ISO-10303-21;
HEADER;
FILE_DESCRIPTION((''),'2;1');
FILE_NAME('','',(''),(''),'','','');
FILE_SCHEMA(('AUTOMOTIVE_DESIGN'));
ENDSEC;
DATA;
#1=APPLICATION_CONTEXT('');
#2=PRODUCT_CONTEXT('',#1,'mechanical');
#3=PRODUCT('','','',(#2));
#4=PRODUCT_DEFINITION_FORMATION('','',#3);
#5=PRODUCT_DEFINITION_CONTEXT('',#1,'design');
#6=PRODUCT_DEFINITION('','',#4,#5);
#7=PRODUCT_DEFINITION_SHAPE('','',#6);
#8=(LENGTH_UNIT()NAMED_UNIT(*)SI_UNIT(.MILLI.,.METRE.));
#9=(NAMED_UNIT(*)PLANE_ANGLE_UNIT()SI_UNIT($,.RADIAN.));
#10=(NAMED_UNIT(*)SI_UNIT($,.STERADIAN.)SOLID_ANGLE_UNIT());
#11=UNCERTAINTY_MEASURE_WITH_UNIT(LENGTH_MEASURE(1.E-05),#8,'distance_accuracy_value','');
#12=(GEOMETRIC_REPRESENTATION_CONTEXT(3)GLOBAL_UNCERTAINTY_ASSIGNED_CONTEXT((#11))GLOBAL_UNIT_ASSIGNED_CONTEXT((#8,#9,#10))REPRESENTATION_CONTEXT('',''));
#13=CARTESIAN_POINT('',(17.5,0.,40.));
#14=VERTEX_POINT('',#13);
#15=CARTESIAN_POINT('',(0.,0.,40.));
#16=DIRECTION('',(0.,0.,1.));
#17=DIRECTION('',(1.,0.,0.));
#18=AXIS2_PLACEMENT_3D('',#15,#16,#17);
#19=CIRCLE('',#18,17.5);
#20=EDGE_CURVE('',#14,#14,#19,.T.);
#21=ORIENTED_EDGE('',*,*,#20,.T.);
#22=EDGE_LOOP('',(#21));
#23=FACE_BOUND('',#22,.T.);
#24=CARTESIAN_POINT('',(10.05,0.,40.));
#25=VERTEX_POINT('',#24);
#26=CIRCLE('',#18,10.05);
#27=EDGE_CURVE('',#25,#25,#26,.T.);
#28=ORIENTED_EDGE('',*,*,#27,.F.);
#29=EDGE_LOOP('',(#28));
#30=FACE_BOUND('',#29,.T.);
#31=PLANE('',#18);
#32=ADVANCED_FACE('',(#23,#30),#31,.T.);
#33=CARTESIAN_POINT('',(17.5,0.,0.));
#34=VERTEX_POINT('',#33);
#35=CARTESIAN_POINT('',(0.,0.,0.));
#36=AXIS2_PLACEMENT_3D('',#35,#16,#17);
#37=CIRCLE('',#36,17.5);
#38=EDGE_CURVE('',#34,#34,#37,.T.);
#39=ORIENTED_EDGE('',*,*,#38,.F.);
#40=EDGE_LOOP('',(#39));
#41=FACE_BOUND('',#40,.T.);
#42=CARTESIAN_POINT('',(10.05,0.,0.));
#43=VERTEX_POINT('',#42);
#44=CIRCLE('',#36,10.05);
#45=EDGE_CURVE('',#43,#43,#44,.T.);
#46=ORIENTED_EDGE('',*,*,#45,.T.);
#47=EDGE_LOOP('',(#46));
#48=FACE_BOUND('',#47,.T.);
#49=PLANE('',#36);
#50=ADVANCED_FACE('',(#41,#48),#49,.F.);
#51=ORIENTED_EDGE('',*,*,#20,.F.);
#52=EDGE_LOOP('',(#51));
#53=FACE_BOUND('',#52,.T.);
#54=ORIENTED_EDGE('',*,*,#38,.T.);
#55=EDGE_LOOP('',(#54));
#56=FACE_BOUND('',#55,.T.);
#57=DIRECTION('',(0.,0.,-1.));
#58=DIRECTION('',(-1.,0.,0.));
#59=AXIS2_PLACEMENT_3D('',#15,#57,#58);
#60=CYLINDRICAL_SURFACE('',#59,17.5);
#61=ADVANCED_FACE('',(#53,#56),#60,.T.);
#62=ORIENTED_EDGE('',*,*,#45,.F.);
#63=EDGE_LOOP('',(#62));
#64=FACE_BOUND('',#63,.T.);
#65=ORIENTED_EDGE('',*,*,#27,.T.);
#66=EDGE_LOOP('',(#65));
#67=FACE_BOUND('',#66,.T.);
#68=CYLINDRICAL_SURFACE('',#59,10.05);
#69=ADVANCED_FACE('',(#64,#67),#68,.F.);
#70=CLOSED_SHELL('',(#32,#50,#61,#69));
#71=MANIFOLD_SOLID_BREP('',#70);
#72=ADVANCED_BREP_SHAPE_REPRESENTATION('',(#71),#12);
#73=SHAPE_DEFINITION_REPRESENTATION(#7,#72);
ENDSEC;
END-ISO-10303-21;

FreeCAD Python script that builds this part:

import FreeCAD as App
import Part
import Sketcher
Q = App.Units.Quantity

doc = App.newDocument("Part")
body = doc.addObject("PartDesign::Body", "Body")

# Sketch on XY plane
sketch1 = doc.addObject("Sketcher::SketchObject", "Sketch")
body.addObject(sketch1)
sketch1.AttachmentSupport = (doc.XY_Plane, [""])
sketch1.MapMode = "FlatFace"
sketch1.addGeometry([
    Part.Circle(App.Vector(0, 0, 0), App.Vector(0, 0, 1), 18),
    Part.Circle(App.Vector(0, 0, 0), App.Vector(0, 0, 1), 10),
], False)
sketch1.addConstraint([
    Sketcher.Constraint("Coincident", 0, 3, -1, 1),
    Sketcher.Constraint("Coincident", 1, 3, -1, 1),
    Sketcher.Constraint("Diameter", 0, Q("35 mm")),
    Sketcher.Constraint("Diameter", 1, Q("20.1 mm")),
])
pad1 = doc.addObject("PartDesign::Pad", "Pad")
body.addObject(pad1)
pad1.Profile = sketch1
pad1.Length = 40

doc.recompute()
